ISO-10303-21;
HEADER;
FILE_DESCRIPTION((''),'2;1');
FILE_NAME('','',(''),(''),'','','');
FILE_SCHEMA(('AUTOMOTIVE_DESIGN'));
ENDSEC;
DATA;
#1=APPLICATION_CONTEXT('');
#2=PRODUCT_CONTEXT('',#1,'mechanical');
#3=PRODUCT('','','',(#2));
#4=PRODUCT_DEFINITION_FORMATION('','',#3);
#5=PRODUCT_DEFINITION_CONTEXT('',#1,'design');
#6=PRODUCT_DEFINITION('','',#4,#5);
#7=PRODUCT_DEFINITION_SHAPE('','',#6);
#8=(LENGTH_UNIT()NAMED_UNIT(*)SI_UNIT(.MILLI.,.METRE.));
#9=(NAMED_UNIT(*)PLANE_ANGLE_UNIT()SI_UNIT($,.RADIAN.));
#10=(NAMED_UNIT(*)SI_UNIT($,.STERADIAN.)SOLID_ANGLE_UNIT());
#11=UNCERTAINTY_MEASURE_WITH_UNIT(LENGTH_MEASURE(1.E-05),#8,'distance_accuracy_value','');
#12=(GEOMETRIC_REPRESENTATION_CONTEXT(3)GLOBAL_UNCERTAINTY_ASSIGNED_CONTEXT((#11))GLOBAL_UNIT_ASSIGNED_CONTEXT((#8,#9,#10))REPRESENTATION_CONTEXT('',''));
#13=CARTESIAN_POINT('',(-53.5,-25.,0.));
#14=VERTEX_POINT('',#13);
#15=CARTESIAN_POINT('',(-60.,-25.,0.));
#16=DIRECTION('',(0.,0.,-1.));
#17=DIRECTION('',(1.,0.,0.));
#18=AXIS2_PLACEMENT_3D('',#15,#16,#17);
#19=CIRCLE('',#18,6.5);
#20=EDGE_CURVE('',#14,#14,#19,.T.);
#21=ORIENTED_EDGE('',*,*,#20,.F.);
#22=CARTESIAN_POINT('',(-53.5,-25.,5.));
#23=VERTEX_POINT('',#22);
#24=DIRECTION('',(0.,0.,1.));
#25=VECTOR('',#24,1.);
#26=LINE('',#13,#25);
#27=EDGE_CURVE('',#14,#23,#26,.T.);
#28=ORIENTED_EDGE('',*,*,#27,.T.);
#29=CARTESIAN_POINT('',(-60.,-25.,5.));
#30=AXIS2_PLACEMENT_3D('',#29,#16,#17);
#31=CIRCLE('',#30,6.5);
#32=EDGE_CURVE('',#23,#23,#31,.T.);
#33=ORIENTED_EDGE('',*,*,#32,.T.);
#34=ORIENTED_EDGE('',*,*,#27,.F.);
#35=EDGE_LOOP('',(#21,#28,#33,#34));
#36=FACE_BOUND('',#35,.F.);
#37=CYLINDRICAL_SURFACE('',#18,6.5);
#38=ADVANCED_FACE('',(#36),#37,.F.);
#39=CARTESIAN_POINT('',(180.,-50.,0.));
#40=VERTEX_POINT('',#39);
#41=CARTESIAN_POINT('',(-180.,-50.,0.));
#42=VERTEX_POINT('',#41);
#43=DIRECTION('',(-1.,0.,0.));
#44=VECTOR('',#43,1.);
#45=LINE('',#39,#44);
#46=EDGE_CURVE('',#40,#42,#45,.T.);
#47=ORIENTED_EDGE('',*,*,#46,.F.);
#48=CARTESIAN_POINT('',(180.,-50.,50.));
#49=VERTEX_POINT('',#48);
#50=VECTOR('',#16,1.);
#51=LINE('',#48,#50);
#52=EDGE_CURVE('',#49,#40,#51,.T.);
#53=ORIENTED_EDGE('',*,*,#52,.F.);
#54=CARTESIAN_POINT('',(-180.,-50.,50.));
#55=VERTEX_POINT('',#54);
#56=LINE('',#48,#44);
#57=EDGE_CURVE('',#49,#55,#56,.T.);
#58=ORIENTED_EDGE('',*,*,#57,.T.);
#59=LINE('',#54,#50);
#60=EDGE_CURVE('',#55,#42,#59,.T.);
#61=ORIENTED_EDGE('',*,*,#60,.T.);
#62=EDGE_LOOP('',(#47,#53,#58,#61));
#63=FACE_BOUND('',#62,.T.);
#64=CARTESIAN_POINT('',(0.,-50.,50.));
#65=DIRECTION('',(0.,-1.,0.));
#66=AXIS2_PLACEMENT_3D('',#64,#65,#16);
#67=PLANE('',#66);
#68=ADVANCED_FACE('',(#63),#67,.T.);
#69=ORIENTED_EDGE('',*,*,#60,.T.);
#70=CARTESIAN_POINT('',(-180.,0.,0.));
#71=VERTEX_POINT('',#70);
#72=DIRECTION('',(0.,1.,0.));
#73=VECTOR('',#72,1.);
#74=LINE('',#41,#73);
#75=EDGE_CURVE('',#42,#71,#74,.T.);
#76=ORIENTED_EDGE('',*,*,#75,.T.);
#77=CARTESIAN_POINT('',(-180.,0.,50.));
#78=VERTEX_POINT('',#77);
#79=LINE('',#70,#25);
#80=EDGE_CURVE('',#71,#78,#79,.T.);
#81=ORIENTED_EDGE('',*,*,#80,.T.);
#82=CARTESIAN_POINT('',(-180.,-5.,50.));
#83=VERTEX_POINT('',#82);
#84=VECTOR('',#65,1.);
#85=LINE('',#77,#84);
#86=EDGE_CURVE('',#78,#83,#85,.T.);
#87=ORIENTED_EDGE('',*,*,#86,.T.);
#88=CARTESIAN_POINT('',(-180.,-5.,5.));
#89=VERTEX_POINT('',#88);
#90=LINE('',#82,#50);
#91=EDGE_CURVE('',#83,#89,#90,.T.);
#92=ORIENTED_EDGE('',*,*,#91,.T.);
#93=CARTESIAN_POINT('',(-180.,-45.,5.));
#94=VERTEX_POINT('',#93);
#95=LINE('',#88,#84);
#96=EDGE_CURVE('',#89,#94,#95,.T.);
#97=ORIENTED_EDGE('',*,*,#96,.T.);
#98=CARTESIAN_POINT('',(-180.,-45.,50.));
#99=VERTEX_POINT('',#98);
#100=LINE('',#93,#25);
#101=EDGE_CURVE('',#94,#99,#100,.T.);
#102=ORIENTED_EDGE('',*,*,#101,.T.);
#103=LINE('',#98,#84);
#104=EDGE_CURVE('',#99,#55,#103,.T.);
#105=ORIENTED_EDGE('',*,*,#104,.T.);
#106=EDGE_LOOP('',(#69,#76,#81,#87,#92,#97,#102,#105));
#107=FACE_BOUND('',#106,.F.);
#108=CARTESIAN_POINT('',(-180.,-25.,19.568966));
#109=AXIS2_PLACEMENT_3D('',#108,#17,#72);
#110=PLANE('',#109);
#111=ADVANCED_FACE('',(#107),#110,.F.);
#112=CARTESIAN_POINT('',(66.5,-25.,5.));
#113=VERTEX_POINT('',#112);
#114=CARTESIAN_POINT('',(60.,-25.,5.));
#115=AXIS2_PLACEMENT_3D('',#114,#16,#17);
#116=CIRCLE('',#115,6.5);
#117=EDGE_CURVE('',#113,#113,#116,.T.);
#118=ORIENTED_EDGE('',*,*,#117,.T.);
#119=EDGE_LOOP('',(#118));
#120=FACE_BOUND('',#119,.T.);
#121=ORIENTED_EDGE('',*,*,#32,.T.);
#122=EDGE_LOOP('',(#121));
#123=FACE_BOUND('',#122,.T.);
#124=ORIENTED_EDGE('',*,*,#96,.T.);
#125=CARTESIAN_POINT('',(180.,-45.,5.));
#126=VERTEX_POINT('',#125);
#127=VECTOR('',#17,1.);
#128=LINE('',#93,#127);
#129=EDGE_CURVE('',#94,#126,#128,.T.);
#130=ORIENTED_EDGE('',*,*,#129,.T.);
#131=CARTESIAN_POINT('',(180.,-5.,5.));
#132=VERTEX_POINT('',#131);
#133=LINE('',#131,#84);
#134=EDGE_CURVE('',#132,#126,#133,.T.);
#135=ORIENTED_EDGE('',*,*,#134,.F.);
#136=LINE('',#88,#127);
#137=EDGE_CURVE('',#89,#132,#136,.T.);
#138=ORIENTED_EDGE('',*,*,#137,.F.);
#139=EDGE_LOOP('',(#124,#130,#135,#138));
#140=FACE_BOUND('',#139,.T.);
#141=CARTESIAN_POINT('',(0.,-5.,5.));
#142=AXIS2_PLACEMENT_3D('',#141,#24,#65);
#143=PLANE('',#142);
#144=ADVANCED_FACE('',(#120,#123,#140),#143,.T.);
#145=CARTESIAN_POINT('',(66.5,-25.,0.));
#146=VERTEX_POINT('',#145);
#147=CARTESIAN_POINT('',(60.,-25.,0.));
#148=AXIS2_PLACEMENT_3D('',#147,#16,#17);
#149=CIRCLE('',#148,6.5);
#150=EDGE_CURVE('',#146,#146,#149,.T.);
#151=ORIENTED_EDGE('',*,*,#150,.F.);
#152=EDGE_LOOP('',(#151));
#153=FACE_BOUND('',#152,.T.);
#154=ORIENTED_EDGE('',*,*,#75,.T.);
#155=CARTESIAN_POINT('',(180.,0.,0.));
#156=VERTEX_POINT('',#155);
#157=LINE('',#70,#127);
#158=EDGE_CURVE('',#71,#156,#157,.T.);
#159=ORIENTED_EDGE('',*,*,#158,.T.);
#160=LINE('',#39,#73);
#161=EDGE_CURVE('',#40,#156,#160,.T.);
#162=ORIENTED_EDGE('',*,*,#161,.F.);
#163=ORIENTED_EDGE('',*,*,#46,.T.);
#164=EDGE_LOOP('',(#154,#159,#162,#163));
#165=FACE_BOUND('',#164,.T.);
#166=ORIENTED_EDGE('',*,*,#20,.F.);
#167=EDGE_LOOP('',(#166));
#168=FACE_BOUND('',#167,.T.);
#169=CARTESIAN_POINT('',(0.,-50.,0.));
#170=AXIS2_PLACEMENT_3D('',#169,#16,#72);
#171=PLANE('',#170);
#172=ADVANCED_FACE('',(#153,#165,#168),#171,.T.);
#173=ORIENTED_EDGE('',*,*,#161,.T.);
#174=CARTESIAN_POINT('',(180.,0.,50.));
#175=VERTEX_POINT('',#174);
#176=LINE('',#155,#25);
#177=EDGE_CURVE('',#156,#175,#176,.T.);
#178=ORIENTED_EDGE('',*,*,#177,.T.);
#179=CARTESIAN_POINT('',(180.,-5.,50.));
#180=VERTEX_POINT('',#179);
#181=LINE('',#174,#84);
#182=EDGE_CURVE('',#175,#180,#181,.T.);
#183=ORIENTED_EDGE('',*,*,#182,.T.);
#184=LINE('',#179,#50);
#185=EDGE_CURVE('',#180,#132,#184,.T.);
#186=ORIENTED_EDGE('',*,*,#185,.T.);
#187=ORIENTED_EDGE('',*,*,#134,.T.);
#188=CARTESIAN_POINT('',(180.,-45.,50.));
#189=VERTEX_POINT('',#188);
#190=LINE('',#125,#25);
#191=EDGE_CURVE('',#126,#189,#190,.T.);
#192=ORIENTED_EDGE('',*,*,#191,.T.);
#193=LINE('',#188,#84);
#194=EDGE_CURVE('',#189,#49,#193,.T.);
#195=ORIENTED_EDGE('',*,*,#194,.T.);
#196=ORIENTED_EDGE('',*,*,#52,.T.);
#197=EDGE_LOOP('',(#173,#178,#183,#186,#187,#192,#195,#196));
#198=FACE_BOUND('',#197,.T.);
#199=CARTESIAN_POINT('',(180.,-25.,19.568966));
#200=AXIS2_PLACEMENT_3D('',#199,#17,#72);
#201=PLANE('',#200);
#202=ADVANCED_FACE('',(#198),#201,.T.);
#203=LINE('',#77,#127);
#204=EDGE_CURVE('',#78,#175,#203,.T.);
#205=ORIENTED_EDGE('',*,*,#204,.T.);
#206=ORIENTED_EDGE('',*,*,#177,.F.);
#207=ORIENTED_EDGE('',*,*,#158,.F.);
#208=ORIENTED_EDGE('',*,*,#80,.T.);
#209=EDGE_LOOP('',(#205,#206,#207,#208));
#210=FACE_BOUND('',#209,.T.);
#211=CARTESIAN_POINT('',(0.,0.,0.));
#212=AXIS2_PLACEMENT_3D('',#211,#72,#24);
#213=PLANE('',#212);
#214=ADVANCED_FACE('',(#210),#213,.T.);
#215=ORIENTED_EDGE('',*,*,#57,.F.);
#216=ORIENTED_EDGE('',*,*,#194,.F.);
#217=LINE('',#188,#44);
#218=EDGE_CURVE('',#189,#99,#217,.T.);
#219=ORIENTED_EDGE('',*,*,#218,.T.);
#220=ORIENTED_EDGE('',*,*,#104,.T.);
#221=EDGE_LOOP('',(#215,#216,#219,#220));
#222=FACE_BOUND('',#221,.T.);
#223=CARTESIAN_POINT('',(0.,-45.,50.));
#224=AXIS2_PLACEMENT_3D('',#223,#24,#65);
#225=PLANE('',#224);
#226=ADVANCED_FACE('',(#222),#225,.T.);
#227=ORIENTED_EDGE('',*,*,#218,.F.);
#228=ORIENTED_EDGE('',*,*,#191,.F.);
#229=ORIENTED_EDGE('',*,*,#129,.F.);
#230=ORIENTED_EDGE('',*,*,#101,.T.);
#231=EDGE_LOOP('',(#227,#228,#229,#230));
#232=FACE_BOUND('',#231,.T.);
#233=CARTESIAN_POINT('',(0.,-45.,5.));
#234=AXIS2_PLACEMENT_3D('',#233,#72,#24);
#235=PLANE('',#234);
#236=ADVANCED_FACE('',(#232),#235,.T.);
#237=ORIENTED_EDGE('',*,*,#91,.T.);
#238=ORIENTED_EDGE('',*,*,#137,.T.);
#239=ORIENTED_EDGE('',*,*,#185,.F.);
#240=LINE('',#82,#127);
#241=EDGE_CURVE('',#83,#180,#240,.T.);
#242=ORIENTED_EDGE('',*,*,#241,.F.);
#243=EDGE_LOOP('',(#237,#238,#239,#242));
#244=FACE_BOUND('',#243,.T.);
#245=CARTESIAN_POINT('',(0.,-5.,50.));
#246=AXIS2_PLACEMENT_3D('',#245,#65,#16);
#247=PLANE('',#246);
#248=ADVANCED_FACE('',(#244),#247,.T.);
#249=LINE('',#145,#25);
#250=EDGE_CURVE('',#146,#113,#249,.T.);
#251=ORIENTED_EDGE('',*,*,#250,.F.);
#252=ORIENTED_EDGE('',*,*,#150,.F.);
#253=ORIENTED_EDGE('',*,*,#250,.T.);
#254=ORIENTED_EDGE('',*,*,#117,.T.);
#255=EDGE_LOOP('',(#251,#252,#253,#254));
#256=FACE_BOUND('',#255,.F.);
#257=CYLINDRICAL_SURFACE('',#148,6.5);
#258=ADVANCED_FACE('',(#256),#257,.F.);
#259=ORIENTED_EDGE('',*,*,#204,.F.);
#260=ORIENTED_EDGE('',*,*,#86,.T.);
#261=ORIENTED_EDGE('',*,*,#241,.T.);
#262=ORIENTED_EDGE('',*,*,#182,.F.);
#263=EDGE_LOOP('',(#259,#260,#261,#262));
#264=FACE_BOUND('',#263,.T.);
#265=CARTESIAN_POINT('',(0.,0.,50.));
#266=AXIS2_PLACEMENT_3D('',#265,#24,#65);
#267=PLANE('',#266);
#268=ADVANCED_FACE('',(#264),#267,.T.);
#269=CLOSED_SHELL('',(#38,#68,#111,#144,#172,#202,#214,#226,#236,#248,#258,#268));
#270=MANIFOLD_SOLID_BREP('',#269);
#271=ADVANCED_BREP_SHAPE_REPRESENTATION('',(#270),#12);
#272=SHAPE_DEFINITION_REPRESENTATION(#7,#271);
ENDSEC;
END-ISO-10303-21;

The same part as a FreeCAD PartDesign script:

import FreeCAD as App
import Part
import Sketcher
Q = App.Units.Quantity


def add_polygon(sketch, points):
    """Adds a closed chain of lines whose ends are joined by coincident constraints."""
    first, n = sketch.GeometryCount, len(points)
    for a, b in zip(points, points[1:] + points[:1]):
        sketch.addGeometry(Part.LineSegment(App.Vector(*a, 0), App.Vector(*b, 0)), False)
    for i in range(n):
        sketch.addConstraint(Sketcher.Constraint("Coincident", first + i, 2, first + (i + 1) % n, 1))

doc = App.newDocument("Part")
body = doc.addObject("PartDesign::Body", "Body")

# Sketch on YZ plane
sketch1 = body.newObject("Sketcher::SketchObject", "Sketch")
sketch1.AttachmentSupport = (doc.getObject("YZ_Plane"), [""])
sketch1.MapMode = "FlatFace"
add_polygon(sketch1, [(-50, 0), (0, 0), (0, 50), (-5, 50), (-5, 5), (-45, 5), (-45, 50), (-50, 50)])  # lines 0-7
sketch1.addConstraint(Sketcher.Constraint("Horizontal", 0))
sketch1.addConstraint(Sketcher.Constraint("Vertical", 1))
sketch1.addConstraint(Sketcher.Constraint("Horizontal", 2))
sketch1.addConstraint(Sketcher.Constraint("Vertical", 3))
sketch1.addConstraint(Sketcher.Constraint("Horizontal", 4))
sketch1.addConstraint(Sketcher.Constraint("Vertical", 5))
sketch1.addConstraint(Sketcher.Constraint("Horizontal", 6))
sketch1.addConstraint(Sketcher.Constraint("Vertical", 7))
sketch1.addConstraint(Sketcher.Constraint("Coincident", 0, 2, -1, 1))
sketch1.addConstraint(Sketcher.Constraint("Horizontal", 2, 2, 5, 2))
sketch1.addConstraint(Sketcher.Constraint("Equal", 2, 6))
sketch1.addConstraint(Sketcher.Constraint("Equal", 0, 1))
sketch1.addConstraint(Sketcher.Constraint("DistanceX", 0, 1, 0, 2, Q("50 mm")))
sketch1.addConstraint(Sketcher.Constraint("DistanceX", 2, 2, 2, 1, Q("5 mm")))
sketch1.addConstraint(Sketcher.Constraint("DistanceY", 3, 2, 3, 1, Q("45 mm")))
pad1 = body.newObject("PartDesign::Pad", "Pad")
pad1.Profile = sketch1
pad1.Length = 360
pad1.Midplane = True

# Sketch on XY plane
sketch2 = body.newObject("Sketcher::SketchObject", "Sketch001")
sketch2.AttachmentSupport = (doc.getObject("XY_Plane"), [""])
sketch2.MapMode = "FlatFace"
sketch2.addGeometry(Part.Circle(App.Vector(-60, -25, 0), App.Vector(0, 0, 1), 6), False)
sketch2.addGeometry(Part.Circle(App.Vector(60, -25, 0), App.Vector(0, 0, 1), 6), False)
sketch2.addConstraint(Sketcher.Constraint("Equal", 0, 1))
sketch2.addConstraint(Sketcher.Constraint("Symmetric", 0, 3, 1, 3, -2))
sketch2.addConstraint(Sketcher.Constraint("Diameter", 0, Q("13 mm")))
sketch2.addConstraint(Sketcher.Constraint("DistanceX", 0, 3, -1, 1, Q("60 mm")))
sketch2.addConstraint(Sketcher.Constraint("DistanceY", 0, 3, -1, 1, Q("25 mm")))
pocket1 = body.newObject("PartDesign::Pocket", "Pocket")
pocket1.Profile = sketch2
pocket1.Length = 25
pocket1.Reversed = True

doc.recompute()
